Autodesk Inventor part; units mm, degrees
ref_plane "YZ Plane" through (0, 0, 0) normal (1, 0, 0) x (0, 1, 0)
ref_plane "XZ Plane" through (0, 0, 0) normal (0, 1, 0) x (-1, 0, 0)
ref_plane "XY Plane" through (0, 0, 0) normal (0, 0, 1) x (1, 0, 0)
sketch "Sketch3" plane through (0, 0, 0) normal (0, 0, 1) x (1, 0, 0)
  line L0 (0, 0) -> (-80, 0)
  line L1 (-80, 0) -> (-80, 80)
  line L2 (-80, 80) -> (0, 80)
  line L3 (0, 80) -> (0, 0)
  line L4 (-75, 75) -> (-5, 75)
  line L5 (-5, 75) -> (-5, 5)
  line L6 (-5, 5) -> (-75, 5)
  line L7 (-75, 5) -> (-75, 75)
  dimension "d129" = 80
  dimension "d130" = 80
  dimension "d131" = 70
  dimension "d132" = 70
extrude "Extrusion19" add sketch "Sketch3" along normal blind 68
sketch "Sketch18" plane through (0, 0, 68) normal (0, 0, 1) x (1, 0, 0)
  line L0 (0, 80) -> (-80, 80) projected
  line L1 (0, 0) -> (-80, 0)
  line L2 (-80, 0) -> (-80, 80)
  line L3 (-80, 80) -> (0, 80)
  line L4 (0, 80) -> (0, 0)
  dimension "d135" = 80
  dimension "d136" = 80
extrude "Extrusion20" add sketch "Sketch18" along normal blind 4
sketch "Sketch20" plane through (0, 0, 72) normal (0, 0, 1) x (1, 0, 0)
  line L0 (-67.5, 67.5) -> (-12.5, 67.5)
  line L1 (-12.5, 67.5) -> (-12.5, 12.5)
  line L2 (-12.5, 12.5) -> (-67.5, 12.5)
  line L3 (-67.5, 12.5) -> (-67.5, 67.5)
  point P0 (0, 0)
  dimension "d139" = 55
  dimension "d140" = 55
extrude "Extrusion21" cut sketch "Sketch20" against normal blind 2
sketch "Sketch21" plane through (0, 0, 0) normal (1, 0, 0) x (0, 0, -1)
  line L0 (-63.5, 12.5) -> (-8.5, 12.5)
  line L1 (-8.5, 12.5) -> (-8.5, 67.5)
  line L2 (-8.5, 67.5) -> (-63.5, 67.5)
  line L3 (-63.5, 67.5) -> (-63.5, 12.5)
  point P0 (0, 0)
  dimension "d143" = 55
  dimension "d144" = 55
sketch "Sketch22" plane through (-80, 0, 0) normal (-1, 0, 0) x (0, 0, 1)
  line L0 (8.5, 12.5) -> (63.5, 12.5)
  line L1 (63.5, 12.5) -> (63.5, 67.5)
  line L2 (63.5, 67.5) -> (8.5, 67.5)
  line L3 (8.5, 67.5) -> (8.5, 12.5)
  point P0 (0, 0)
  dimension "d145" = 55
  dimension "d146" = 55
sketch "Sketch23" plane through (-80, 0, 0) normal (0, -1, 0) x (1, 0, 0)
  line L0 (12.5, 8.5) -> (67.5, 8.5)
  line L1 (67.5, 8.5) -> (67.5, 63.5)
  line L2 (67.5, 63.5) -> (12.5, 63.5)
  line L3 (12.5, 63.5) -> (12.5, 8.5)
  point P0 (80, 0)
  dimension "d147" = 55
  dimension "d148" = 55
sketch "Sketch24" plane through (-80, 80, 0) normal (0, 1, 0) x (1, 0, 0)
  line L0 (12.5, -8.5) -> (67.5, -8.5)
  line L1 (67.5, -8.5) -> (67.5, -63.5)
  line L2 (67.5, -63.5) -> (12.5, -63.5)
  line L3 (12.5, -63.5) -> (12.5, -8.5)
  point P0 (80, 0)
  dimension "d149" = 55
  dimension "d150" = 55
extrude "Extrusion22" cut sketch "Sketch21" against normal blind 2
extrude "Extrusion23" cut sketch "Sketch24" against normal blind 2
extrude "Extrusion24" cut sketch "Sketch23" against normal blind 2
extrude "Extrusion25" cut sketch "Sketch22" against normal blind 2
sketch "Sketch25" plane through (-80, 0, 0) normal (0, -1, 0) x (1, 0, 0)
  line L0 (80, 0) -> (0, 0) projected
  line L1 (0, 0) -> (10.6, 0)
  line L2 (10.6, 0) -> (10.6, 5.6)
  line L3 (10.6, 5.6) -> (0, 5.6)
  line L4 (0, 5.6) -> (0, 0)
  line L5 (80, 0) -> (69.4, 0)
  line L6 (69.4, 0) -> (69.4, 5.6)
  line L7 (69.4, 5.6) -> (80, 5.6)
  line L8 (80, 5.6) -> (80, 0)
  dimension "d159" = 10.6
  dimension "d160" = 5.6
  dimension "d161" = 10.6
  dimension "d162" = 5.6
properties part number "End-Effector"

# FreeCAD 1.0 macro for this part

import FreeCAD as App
import Part
import Sketcher


def add_polygon(sketch, points):
    """Adds a closed chain of lines whose ends are joined by coincident constraints."""
    first, n = sketch.GeometryCount, len(points)
    for a, b in zip(points, points[1:] + points[:1]):
        sketch.addGeometry(Part.LineSegment(App.Vector(*a, 0), App.Vector(*b, 0)), False)
    for i in range(n):
        sketch.addConstraint(Sketcher.Constraint("Coincident", first + i, 2, first + (i + 1) % n, 1))

doc = App.newDocument("Part")
body = doc.addObject("PartDesign::Body", "Body")

sketch1 = doc.addObject("Sketcher::SketchObject", "Sketch")
body.addObject(sketch1)
sketch1.AttachmentSupport = (doc.XY_Plane, [""])
sketch1.MapMode = "FlatFace"
add_polygon(sketch1, [(-80, 0), (0, 0), (0, 80), (-80, 80)])
add_polygon(sketch1, [(-75, 5), (-75, 75), (-5, 75), (-5, 5)])
sketch1.addConstraint(Sketcher.Constraint("Horizontal", 0))
sketch1.addConstraint(Sketcher.Constraint("Vertical", 1))
sketch1.addConstraint(Sketcher.Constraint("Horizontal", 2))
sketch1.addConstraint(Sketcher.Constraint("Vertical", 3))
sketch1.addConstraint(Sketcher.Constraint("Vertical", 4))
sketch1.addConstraint(Sketcher.Constraint("Horizontal", 5))
sketch1.addConstraint(Sketcher.Constraint("Vertical", 6))
sketch1.addConstraint(Sketcher.Constraint("Horizontal", 7))
sketch1.addConstraint(Sketcher.Constraint("Coincident", 0, 2, -1, 1))
sketch1.addConstraint(Sketcher.Constraint("Equal", 2, 1))
sketch1.addConstraint(Sketcher.Constraint("Equal", 7, 4))
sketch1.addConstraint(Sketcher.Constraint("DistanceX", 0, 1, 0, 2, 80.0))
sketch1.addConstraint(Sketcher.Constraint("DistanceX", 5, 1, 5, 2, 70.0))
sketch1.addConstraint(Sketcher.Constraint("DistanceX", 4, 2, -1, 1, 75.0))
sketch1.addConstraint(Sketcher.Constraint("DistanceY", -1, 1, 4, 2, 75.0))
pad1 = doc.addObject("PartDesign::Pad", "Pad")
body.addObject(pad1)
pad1.Profile = sketch1
pad1.Length = 68

sketch2 = doc.addObject("Sketcher::SketchObject", "Sketch001")
body.addObject(sketch2)
sketch2.AttachmentSupport = (doc.XY_Plane, [""])
sketch2.MapMode = "FlatFace"
sketch2.AttachmentOffset = App.Placement(App.Vector(0, 0, 68), App.Rotation())
add_polygon(sketch2, [(0, 0), (0, 80), (-80, 80), (-80, 0)])
sketch2.addConstraint(Sketcher.Constraint("Vertical", 0))
sketch2.addConstraint(Sketcher.Constraint("Horizontal", 1))
sketch2.addConstraint(Sketcher.Constraint("Vertical", 2))
sketch2.addConstraint(Sketcher.Constraint("Horizontal", 3))
sketch2.addConstraint(Sketcher.Constraint("Coincident", 3, 2, -1, 1))
sketch2.addConstraint(Sketcher.Constraint("Equal", 3, 0))
sketch2.addConstraint(Sketcher.Constraint("DistanceX", 1, 2, 1, 1, 80.0))
pad2 = doc.addObject("PartDesign::Pad", "Pad001")
body.addObject(pad2)
pad2.Profile = sketch2
pad2.Length = 4

sketch3 = doc.addObject("Sketcher::SketchObject", "Sketch002")
body.addObject(sketch3)
sketch3.AttachmentSupport = (doc.XY_Plane, [""])
sketch3.MapMode = "FlatFace"
sketch3.AttachmentOffset = App.Placement(App.Vector(0, 0, 72), App.Rotation())
add_polygon(sketch3, [(-12, 68), (-68, 68), (-68, 12), (-12, 12)])
sketch3.addConstraint(Sketcher.Constraint("Horizontal", 0))
sketch3.addConstraint(Sketcher.Constraint("Vertical", 1))
sketch3.addConstraint(Sketcher.Constraint("Horizontal", 2))
sketch3.addConstraint(Sketcher.Constraint("Vertical", 3))
sketch3.addConstraint(Sketcher.Constraint("Equal", 2, 1))
sketch3.addConstraint(Sketcher.Constraint("DistanceX", 0, 2, 0, 1, 55.0))
sketch3.addConstraint(Sketcher.Constraint("DistanceX", 0, 2, -1, 1, 67.5))
sketch3.addConstraint(Sketcher.Constraint("DistanceY", -1, 1, 0, 2, 67.5))
pocket1 = doc.addObject("PartDesign::Pocket", "Pocket")
body.addObject(pocket1)
pocket1.Profile = sketch3
pocket1.Length = 2

sketch4 = doc.addObject("Sketcher::SketchObject", "Sketch003")
body.addObject(sketch4)
sketch4.AttachmentSupport = (doc.YZ_Plane, [""])
sketch4.MapMode = "FlatFace"
add_polygon(sketch4, [(68, 64), (12, 64), (12, 8), (68, 8)])
sketch4.addConstraint(Sketcher.Constraint("Horizontal", 0))
sketch4.addConstraint(Sketcher.Constraint("Vertical", 1))
sketch4.addConstraint(Sketcher.Constraint("Horizontal", 2))
sketch4.addConstraint(Sketcher.Constraint("Vertical", 3))
sketch4.addConstraint(Sketcher.Constraint("Equal", 2, 1))
sketch4.addConstraint(Sketcher.Constraint("DistanceX", 0, 2, 0, 1, 55.0))
sketch4.addConstraint(Sketcher.Constraint("DistanceX", -1, 1, 0, 2, 12.5))
sketch4.addConstraint(Sketcher.Constraint("DistanceY", -1, 1, 0, 2, 63.5))
pocket2 = doc.addObject("PartDesign::Pocket", "Pocket001")
body.addObject(pocket2)
pocket2.Profile = sketch4
pocket2.Length = 2

sketch5 = doc.addObject("Sketcher::SketchObject", "Sketch004")
body.addObject(sketch5)
sketch5.AttachmentSupport = (doc.XZ_Plane, [""])
sketch5.MapMode = "FlatFace"
sketch5.AttachmentOffset = App.Placement(App.Vector(0, 0, -80), App.Rotation())
add_polygon(sketch5, [(-12, 8), (-68, 8), (-68, 64), (-12, 64)])
sketch5.addConstraint(Sketcher.Constraint("Horizontal", 0))
sketch5.addConstraint(Sketcher.Constraint("Vertical", 1))
sketch5.addConstraint(Sketcher.Constraint("Horizontal", 2))
sketch5.addConstraint(Sketcher.Constraint("Vertical", 3))
sketch5.addConstraint(Sketcher.Constraint("Equal", 2, 1))
sketch5.addConstraint(Sketcher.Constraint("DistanceX", 0, 2, 0, 1, 55.0))
sketch5.addConstraint(Sketcher.Constraint("DistanceX", 0, 2, -1, 1, 67.5))
sketch5.addConstraint(Sketcher.Constraint("DistanceY", -1, 1, 0, 2, 8.5))
pocket3 = doc.addObject("PartDesign::Pocket", "Pocket002")
body.addObject(pocket3)
pocket3.Profile = sketch5
pocket3.Length = 2
pocket3.Reversed = True

sketch6 = doc.addObject("Sketcher::SketchObject", "Sketch005")
body.addObject(sketch6)
sketch6.AttachmentSupport = (doc.XZ_Plane, [""])
sketch6.MapMode = "FlatFace"
add_polygon(sketch6, [(-68, 64), (-68, 8), (-12, 8), (-12, 64)])
sketch6.addConstraint(Sketcher.Constraint("Vertical", 0))
sketch6.addConstraint(Sketcher.Constraint("Horizontal", 1))
sketch6.addConstraint(Sketcher.Constraint("Vertical", 2))
sketch6.addConstraint(Sketcher.Constraint("Horizontal", 3))
sketch6.addConstraint(Sketcher.Constraint("Equal", 3, 0))
sketch6.addConstraint(Sketcher.Constraint("DistanceX", 1, 1, 1, 2, 55.0))
sketch6.addConstraint(Sketcher.Constraint("DistanceX", 0, 2, -1, 1, 67.5))
sketch6.addConstraint(Sketcher.Constraint("DistanceY", -1, 1, 0, 2, 8.5))
pocket4 = doc.addObject("PartDesign::Pocket", "Pocket003")
body.addObject(pocket4)
pocket4.Profile = sketch6
pocket4.Length = 2

sketch7 = doc.addObject("Sketcher::SketchObject", "Sketch006")
body.addObject(sketch7)
sketch7.AttachmentSupport = (doc.YZ_Plane, [""])
sketch7.MapMode = "FlatFace"
sketch7.AttachmentOffset = App.Placement(App.Vector(0, 0, -80), App.Rotation())
add_polygon(sketch7, [(68, 8), (12, 8), (12, 64), (68, 64)])
sketch7.addConstraint(Sketcher.Constraint("Horizontal", 0))
sketch7.addConstraint(Sketcher.Constraint("Vertical", 1))
sketch7.addConstraint(Sketcher.Constraint("Horizontal", 2))
sketch7.addConstraint(Sketcher.Constraint("Vertical", 3))
sketch7.addConstraint(Sketcher.Constraint("Equal", 2, 1))
sketch7.addConstraint(Sketcher.Constraint("DistanceX", 0, 2, 0, 1, 55.0))
sketch7.addConstraint(Sketcher.Constraint("DistanceX", -1, 1, 0, 2, 12.5))
sketch7.addConstraint(Sketcher.Constraint("DistanceY", -1, 1, 0, 2, 8.5))
pocket5 = doc.addObject("PartDesign::Pocket", "Pocket004")
body.addObject(pocket5)
pocket5.Profile = sketch7
pocket5.Length = 2
pocket5.Reversed = True

doc.recompute()
